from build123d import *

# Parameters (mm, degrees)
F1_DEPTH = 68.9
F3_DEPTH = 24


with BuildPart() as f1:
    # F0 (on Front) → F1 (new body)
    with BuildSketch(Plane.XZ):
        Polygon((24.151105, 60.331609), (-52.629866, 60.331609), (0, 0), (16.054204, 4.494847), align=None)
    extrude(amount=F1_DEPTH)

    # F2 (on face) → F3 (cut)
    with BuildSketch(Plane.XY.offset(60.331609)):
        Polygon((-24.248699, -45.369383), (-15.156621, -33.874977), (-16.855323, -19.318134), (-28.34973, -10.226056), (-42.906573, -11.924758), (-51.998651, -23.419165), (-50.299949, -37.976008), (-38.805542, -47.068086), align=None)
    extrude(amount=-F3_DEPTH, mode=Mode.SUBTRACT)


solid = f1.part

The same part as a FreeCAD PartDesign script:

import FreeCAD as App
import Part
import Sketcher


def add_polygon(sketch, points):
    """Adds a closed chain of lines whose ends are joined by coincident constraints."""
    first, n = sketch.GeometryCount, len(points)
    for a, b in zip(points, points[1:] + points[:1]):
        sketch.addGeometry(Part.LineSegment(App.Vector(*a, 0), App.Vector(*b, 0)), False)
    for i in range(n):
        sketch.addConstraint(Sketcher.Constraint("Coincident", first + i, 2, first + (i + 1) % n, 1))

doc = App.newDocument("Part")
body = doc.addObject("PartDesign::Body", "Body")

# Sketch on XZ plane
sketch1 = body.newObject("Sketcher::SketchObject", "Sketch")
sketch1.AttachmentSupport = (doc.getObject("XZ_Plane"), [""])
sketch1.MapMode = "FlatFace"
add_polygon(sketch1, [(24.151105, 60.331609), (-52.629866, 60.331609), (0, 0), (16.054204, 4.494847)])  # lines 0-3
sketch1.addConstraint([
    Sketcher.Constraint("Horizontal", 0),
    Sketcher.Constraint("Coincident", 1, 2, -1, 1),
    Sketcher.Constraint("DistanceX", 0, 2, 0, 1, 76.780971),
    Sketcher.Constraint("DistanceX", 2, 2, 3, 2, 8.096901),
    Sketcher.Constraint("DistanceY", -1, 1, 0, 2, 60.331609),
    Sketcher.Constraint("Distance", 1, 80.061263),
    Sketcher.Constraint("Distance", 2, 16.671566),
])
pad1 = body.newObject("PartDesign::Pad", "Pad")
pad1.Profile = sketch1
pad1.Length = 68.9

# Sketch on XY plane
sketch2 = body.newObject("Sketcher::SketchObject", "Sketch001")
sketch2.AttachmentSupport = (doc.getObject("XY_Plane"), [""])
sketch2.MapMode = "FlatFace"
sketch2.AttachmentOffset = App.Placement(App.Vector(0, 0, 60.331609), App.Rotation())
add_polygon(sketch2, [(-24.248699, -45.369383), (-15.156621, -33.874977), (-16.855323, -19.318134), (-28.34973, -10.226056), (-42.906573, -11.924758), (-51.998651, -23.419165), (-50.299949, -37.976008), (-38.805542, -47.068086)])  # lines 0-7
sketch2.addConstraint([
    Sketcher.Constraint("Perpendicular", 0, 2),
    Sketcher.Constraint("Perpendicular", 1, 3),
    Sketcher.Constraint("Perpendicular", 2, 4),
    Sketcher.Constraint("Perpendicular", 3, 5),
    Sketcher.Constraint("Perpendicular", 4, 6),
    Sketcher.Constraint("Perpendicular", 5, 7),
    Sketcher.Constraint("Equal", 0, 1),
    Sketcher.Constraint("Equal", 1, 2),
    Sketcher.Constraint("Equal", 2, 3),
    Sketcher.Constraint("Equal", 3, 4),
    Sketcher.Constraint("Equal", 4, 5),
    Sketcher.Constraint("DistanceX", 7, 2, -1, 1, 24.248699),
    Sketcher.Constraint("DistanceX", 1, 2, 0, 2, 1.698702),
    Sketcher.Constraint("Distance", 0, 14.655622),
    Sketcher.Constraint("DistanceX", 0, 2, -1, 1, 15.156621),
    Sketcher.Constraint("DistanceY", 3, 2, -1, 1, 11.924758),
])
pocket1 = body.newObject("PartDesign::Pocket", "Pocket")
pocket1.Profile = sketch2
pocket1.Length = 24

doc.recompute()
